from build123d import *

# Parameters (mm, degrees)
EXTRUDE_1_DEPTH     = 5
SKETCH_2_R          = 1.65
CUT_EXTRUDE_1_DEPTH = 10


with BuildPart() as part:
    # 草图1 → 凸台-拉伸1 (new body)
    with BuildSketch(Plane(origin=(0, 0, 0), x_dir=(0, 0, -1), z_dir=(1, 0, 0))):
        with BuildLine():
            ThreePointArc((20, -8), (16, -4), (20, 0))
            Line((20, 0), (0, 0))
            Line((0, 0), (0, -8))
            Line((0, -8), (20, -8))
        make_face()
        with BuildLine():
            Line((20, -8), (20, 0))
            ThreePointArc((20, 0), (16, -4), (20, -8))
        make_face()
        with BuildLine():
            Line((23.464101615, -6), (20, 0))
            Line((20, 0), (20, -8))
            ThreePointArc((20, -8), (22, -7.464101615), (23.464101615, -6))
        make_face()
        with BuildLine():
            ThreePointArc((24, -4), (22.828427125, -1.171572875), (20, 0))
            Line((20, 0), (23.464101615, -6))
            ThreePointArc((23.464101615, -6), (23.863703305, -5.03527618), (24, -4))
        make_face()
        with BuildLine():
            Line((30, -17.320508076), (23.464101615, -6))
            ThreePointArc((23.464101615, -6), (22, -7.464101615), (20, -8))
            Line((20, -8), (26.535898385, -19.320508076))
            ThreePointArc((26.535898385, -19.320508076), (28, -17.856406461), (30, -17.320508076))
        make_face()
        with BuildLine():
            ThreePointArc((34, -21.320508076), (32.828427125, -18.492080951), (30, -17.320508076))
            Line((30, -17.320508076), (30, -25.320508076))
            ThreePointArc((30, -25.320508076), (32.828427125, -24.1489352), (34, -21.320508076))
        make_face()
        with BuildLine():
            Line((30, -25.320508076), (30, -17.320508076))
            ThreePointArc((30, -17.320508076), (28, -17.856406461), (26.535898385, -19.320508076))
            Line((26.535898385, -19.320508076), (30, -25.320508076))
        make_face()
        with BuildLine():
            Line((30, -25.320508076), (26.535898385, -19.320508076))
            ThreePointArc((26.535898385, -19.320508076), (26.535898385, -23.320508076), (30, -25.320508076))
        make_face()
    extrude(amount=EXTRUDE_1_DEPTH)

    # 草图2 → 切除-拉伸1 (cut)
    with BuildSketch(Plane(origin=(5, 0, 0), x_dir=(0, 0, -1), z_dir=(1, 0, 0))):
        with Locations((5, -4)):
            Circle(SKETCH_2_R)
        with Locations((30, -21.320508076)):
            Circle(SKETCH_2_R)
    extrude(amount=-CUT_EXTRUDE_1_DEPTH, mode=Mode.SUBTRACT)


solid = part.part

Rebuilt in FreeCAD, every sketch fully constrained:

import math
import FreeCAD as App
import Part
import Sketcher
from FreeCAD import Vector
Q = App.Units.Quantity

doc = App.newDocument("Part")
params = doc.addObject("Spreadsheet::Sheet", "Params")
for row, (alias, value) in enumerate([
    ("sketch1_radius", "4 mm"),
    ("sketch1_height", "20 mm"),
    ("pad1_length", "5 mm"),
    ("sketch2_diameter", "3.3 mm"),
    ("pocket1_length", "10 mm"),
], start=1):
    params.set(f"A{row}", alias)
    params.set(f"B{row}", "=" + value)
    params.setAlias(f"B{row}", alias)

body = doc.addObject("PartDesign::Body", "Body")

sketch1 = doc.addObject("Sketcher::SketchObject", "Sketch")
body.addObject(sketch1)
sketch1.AttachmentSupport = (doc.YZ_Plane, [""])
sketch1.MapMode = "FlatFace"
sketch1.addGeometry([
    Part.LineSegment(Vector(0, -20, 0), Vector(0, 0, 0)),
    Part.LineSegment(Vector(0, 0, 0), Vector(-8, 0, 0)),
    Part.LineSegment(Vector(-8, 0, 0), Vector(-8, -20, 0)),
    Part.LineSegment(Vector(-8, -20, 0), Vector(-19.3, -26.5, 0)),
    Part.ArcOfCircle(Part.Circle(Vector(-21.3, -30, 0), Vector(0, 0, 1), 4), math.radians(60), math.radians(180)),
    Part.ArcOfCircle(Part.Circle(Vector(-21.3, -30, 0), Vector(0, 0, 1), 4), math.radians(-180), math.radians(-90)),
    Part.ArcOfCircle(Part.Circle(Vector(-21.3, -30, 0), Vector(0, 0, 1), 4), math.radians(-90), math.radians(0)),
    Part.LineSegment(Vector(-17.3, -30, 0), Vector(-6, -23.5, 0)),
    Part.ArcOfCircle(Part.Circle(Vector(-4, -20, 0), Vector(0, 0, 1), 4), math.radians(-120), math.radians(-90)),
    Part.ArcOfCircle(Part.Circle(Vector(-4, -20, 0), Vector(0, 0, 1), 4), math.radians(-90), math.radians(0)),
], False)
sketch1.addConstraint([
    Sketcher.Constraint("Coincident", 0, 2, 1, 1),
    Sketcher.Constraint("Coincident", 1, 2, 2, 1),
    Sketcher.Constraint("Coincident", 2, 2, 3, 1),
    Sketcher.Constraint("Coincident", 3, 2, 4, 1),
    Sketcher.Constraint("Tangent", 4, 2, 5, 1),
    Sketcher.Constraint("Tangent", 5, 2, 6, 1),
    Sketcher.Constraint("Coincident", 6, 2, 7, 1),
    Sketcher.Constraint("Coincident", 7, 2, 8, 1),
    Sketcher.Constraint("Tangent", 8, 2, 9, 1),
    Sketcher.Constraint("Tangent", 9, 2, 0, 1),
    Sketcher.Constraint("Vertical", 0),
    Sketcher.Constraint("Horizontal", 1),
    Sketcher.Constraint("Vertical", 2),
    Sketcher.Constraint("Coincident", 0, 2, -1, 1),
    Sketcher.Constraint("Coincident", 6, 3, 4, 3),
    Sketcher.Constraint("Equal", 6, 8),
    Sketcher.Constraint("Equal", 8, 9),
    Sketcher.Constraint("Parallel", 3, 7),
    Sketcher.Constraint("Horizontal", 9, 3, 2, 2),
    Sketcher.Constraint("Horizontal", 6, 3, 4, 2),
    Sketcher.Constraint("Horizontal", 4, 2, 6, 2),
    Sketcher.Constraint("Vertical", 6, 3, 5, 2),
    Sketcher.Constraint("Vertical", 9, 3, 8, 2),
    Sketcher.Constraint("Equal", 3, 7),
    Sketcher.Constraint("Radius", 4, 4.0),
    Sketcher.Constraint("DistanceY", 0, 1, 0, 2, 20.0),
    Sketcher.Constraint("Angle", 3, Q("-150 deg")),
    Sketcher.Constraint("DistanceY", 4, 3, -1, 1, 30.0),
    Sketcher.Constraint("DistanceX", 7, 2, -1, 1, 6.0),
])
sketch1.setExpression("Constraints[24]", "Params.sketch1_radius")
sketch1.setExpression("Constraints[25]", "Params.sketch1_height")
pad1 = doc.addObject("PartDesign::Pad", "Pad")
body.addObject(pad1)
pad1.Profile = sketch1
pad1.setExpression("Length", "Params.pad1_length")

sketch2 = doc.addObject("Sketcher::SketchObject", "Sketch001")
body.addObject(sketch2)
sketch2.AttachmentSupport = (doc.YZ_Plane, [""])
sketch2.MapMode = "FlatFace"
sketch2.AttachmentOffset = App.Placement(Vector(0, 0, 5), App.Rotation())
sketch2.addGeometry([
    Part.Circle(Vector(-4, -5, 0), Vector(0, 0, 1), 1.6),
    Part.Circle(Vector(-21.3, -30, 0), Vector(0, 0, 1), 1.6),
], False)
sketch2.addConstraint([
    Sketcher.Constraint("Equal", 0, 1),
    Sketcher.Constraint("Diameter", 0, 3.3),
    Sketcher.Constraint("DistanceX", 0, 3, -1, 1, 4.0),
    Sketcher.Constraint("DistanceY", 0, 3, -1, 1, 5.0),
    Sketcher.Constraint("DistanceY", 1, 3, -1, 1, 30.0),
    Sketcher.Constraint("DistanceX", 1, 3, -1, 1, 21.320508),
])
sketch2.setExpression("Constraints[1]", "Params.sketch2_diameter")
pocket1 = doc.addObject("PartDesign::Pocket", "Pocket")
body.addObject(pocket1)
pocket1.Profile = sketch2
pocket1.setExpression("Length", "Params.pocket1_length")

doc.recompute()
